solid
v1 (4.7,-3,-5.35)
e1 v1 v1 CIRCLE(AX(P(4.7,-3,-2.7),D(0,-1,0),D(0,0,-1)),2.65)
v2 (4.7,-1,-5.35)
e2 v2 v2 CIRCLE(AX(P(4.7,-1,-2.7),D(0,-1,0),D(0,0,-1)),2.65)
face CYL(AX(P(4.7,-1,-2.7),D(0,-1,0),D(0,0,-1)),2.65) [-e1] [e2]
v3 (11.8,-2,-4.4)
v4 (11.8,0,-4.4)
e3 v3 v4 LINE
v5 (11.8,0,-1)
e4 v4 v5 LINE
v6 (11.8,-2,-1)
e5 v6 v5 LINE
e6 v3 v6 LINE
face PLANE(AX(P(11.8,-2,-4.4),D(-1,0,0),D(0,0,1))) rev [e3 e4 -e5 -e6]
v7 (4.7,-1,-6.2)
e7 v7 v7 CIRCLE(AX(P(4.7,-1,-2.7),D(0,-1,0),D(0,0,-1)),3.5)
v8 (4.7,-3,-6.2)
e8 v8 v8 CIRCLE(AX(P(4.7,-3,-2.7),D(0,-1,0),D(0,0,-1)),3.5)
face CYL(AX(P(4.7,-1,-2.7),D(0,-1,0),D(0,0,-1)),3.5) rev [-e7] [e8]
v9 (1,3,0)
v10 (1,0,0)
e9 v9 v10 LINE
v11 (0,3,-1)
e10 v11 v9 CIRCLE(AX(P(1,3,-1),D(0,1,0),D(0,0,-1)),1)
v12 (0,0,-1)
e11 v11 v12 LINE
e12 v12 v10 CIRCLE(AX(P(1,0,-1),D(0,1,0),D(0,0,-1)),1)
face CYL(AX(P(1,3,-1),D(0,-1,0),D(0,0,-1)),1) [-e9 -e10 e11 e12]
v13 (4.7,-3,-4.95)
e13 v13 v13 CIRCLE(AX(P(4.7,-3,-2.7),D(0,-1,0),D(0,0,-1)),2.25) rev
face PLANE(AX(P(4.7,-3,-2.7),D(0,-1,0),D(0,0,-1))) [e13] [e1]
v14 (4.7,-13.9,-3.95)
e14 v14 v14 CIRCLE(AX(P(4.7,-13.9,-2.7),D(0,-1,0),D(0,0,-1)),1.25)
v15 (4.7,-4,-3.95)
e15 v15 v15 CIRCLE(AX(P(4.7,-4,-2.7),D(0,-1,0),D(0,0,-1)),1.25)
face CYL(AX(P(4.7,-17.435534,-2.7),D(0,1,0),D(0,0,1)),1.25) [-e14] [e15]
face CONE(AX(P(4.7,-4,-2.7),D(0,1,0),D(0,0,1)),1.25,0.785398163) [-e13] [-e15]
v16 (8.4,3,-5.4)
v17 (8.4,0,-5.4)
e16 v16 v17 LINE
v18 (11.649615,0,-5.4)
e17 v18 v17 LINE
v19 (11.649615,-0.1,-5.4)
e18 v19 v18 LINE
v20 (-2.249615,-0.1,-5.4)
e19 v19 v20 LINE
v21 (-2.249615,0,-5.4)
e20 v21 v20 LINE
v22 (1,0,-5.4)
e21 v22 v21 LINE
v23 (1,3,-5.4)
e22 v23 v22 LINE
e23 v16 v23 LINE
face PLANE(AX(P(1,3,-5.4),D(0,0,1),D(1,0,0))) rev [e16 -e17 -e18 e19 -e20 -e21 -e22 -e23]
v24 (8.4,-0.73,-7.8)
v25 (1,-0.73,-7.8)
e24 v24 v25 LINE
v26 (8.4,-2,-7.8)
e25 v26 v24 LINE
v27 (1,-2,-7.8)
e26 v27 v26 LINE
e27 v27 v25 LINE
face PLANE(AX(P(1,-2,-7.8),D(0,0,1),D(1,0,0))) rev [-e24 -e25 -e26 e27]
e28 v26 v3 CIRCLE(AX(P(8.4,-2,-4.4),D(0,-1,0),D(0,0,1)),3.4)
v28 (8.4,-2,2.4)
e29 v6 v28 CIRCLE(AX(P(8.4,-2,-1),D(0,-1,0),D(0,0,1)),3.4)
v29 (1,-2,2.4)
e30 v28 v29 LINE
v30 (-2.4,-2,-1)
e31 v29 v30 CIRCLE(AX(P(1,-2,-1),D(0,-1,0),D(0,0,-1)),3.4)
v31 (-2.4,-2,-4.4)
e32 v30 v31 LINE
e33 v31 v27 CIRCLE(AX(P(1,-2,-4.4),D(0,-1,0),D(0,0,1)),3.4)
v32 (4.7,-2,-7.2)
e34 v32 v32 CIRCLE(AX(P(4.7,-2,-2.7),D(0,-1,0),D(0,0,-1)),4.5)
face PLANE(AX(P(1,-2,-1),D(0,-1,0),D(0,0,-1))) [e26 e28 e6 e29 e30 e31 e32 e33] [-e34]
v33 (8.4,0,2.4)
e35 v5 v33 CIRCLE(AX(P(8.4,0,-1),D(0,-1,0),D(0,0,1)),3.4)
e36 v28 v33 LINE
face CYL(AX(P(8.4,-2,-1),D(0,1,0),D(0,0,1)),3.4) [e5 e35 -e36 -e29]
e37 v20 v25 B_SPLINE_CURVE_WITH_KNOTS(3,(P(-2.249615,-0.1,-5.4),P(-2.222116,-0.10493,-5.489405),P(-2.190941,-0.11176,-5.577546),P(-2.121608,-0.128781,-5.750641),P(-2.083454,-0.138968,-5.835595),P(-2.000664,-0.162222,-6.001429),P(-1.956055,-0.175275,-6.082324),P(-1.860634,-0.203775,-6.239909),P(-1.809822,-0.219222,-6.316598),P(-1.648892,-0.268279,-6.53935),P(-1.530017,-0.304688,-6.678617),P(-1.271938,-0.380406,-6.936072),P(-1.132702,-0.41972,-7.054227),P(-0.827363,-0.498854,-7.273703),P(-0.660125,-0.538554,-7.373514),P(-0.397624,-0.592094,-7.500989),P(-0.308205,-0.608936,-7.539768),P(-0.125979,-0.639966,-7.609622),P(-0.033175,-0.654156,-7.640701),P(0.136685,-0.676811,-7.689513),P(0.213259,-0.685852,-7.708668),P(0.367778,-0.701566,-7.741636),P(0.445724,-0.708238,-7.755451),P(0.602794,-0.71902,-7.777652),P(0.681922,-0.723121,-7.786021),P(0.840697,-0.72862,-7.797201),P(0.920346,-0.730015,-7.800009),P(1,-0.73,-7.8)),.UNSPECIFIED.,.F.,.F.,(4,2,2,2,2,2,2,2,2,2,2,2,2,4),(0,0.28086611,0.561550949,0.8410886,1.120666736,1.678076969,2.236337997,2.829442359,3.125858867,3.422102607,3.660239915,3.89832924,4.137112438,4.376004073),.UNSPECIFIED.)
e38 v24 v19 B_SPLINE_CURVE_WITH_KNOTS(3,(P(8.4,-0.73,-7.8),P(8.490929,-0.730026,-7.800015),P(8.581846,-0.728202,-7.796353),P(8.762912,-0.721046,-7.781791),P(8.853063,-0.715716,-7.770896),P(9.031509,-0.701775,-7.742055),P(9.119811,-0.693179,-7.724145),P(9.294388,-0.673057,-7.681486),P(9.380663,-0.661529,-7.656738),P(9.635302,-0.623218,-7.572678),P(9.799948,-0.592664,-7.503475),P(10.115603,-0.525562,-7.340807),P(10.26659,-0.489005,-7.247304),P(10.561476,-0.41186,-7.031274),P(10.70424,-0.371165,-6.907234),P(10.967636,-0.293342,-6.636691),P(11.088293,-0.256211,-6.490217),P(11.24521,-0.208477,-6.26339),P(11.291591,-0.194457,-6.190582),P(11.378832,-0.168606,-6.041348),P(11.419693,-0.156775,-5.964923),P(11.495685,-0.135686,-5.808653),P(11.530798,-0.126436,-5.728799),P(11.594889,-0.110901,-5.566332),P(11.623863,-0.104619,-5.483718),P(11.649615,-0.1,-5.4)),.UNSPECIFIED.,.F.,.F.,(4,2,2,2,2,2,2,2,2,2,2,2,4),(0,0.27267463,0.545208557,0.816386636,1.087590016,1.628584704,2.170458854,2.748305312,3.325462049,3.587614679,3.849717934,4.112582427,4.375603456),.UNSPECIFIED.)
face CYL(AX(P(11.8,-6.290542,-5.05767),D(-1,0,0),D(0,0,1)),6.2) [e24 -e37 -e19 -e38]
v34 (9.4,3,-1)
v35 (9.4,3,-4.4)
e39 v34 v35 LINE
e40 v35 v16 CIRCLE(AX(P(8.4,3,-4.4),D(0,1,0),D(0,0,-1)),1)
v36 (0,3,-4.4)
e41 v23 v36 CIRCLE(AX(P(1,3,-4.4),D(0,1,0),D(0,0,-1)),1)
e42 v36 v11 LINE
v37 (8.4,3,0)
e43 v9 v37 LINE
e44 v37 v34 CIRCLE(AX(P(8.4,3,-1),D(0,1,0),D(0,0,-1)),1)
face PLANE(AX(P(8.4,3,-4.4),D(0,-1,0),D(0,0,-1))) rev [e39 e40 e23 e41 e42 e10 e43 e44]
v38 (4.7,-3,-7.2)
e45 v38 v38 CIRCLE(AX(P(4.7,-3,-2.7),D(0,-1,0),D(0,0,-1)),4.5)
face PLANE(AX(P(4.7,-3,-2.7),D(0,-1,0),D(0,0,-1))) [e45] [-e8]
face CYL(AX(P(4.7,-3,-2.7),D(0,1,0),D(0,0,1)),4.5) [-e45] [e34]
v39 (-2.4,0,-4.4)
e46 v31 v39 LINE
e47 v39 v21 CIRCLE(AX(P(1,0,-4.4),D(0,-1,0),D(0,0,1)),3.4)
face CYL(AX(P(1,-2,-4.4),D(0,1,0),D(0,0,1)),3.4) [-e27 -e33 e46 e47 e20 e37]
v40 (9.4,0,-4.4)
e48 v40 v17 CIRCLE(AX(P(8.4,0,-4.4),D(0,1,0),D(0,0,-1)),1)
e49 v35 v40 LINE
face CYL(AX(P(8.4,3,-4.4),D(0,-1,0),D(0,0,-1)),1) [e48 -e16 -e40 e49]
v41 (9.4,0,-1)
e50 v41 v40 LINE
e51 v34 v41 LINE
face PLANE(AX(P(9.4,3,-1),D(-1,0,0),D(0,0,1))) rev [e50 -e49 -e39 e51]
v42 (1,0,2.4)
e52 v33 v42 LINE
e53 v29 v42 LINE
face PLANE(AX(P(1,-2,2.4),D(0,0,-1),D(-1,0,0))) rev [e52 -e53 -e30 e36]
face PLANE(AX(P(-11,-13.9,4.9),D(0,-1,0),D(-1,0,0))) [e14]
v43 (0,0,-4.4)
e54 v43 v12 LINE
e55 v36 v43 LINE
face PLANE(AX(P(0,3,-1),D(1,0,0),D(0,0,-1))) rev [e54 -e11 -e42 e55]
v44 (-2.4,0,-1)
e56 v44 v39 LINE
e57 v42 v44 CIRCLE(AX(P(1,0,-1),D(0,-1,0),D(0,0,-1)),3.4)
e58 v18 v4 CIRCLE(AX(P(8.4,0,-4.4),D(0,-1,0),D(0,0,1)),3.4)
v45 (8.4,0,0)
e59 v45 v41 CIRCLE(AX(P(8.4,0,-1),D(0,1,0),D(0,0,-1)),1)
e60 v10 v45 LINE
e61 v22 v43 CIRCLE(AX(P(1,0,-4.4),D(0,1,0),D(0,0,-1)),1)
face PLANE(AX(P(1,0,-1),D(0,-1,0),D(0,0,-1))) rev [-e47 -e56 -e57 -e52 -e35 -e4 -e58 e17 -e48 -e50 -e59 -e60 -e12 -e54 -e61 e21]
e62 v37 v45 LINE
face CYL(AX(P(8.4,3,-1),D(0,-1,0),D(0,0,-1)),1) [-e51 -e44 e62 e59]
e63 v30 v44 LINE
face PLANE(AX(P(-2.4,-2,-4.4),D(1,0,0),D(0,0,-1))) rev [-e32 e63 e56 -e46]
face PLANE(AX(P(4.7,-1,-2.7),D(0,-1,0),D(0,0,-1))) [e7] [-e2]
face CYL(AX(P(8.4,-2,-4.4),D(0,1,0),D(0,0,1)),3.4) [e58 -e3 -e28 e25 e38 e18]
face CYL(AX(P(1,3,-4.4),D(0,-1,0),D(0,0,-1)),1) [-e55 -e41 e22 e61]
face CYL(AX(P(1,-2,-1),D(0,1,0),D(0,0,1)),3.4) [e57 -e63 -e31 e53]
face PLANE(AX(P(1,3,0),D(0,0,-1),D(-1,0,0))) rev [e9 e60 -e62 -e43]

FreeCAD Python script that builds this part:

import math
import FreeCAD as App
import Part
import Sketcher
from FreeCAD import Vector


def edges_at(feature, points):
    """Names of the edges that pass closest to the given points."""
    edges = feature.Shape.Edges
    near = lambda p: min(range(len(edges)), key=lambda i: edges[i].distToShape(Part.Vertex(*p))[0])
    return sorted({f"Edge{near(p) + 1}" for p in points})

doc = App.newDocument("Part")
body = doc.addObject("PartDesign::Body", "Body")

sketch1 = body.newObject("Sketcher::SketchObject", "Sketch")
sketch1.AttachmentSupport = (doc.getObject("XZ_Plane"), [""])
sketch1.MapMode = "FlatFace"
sketch1.addGeometry([
    Part.LineSegment(Vector(1, 0, 0), Vector(8.4, 0, 0)),
    Part.ArcOfCircle(Part.Circle(Vector(8.4, -1, 0), Vector(0, 0, 1), 1), math.radians(0), math.radians(90)),
    Part.LineSegment(Vector(9.4, -1, 0), Vector(9.4, -4.4, 0)),
    Part.ArcOfCircle(Part.Circle(Vector(8.4, -4.4, 0), Vector(0, 0, 1), 1), math.radians(-90), math.radians(0)),
    Part.LineSegment(Vector(8.4, -5.4, 0), Vector(1, -5.4, 0)),
    Part.ArcOfCircle(Part.Circle(Vector(1, -4.4, 0), Vector(0, 0, 1), 1), math.radians(-180), math.radians(-90)),
    Part.LineSegment(Vector(0, -4.4, 0), Vector(0, -1, 0)),
    Part.ArcOfCircle(Part.Circle(Vector(1, -1, 0), Vector(0, 0, 1), 1), math.radians(90), math.radians(180)),
], False)
sketch1.addConstraint([
    Sketcher.Constraint("Tangent", 0, 2, 1, 2),
    Sketcher.Constraint("Tangent", 1, 1, 2, 1),
    Sketcher.Constraint("Tangent", 2, 2, 3, 2),
    Sketcher.Constraint("Tangent", 3, 1, 4, 1),
    Sketcher.Constraint("Tangent", 4, 2, 5, 2),
    Sketcher.Constraint("Tangent", 5, 1, 6, 1),
    Sketcher.Constraint("Tangent", 6, 2, 7, 2),
    Sketcher.Constraint("Tangent", 7, 1, 0, 1),
    Sketcher.Constraint("Horizontal", 0),
    Sketcher.Constraint("Vertical", 2),
    Sketcher.Constraint("Horizontal", 4),
    Sketcher.Constraint("Vertical", 6),
    Sketcher.Constraint("Equal", 1, 3),
    Sketcher.Constraint("Equal", 3, 5),
    Sketcher.Constraint("Equal", 5, 7),
    Sketcher.Constraint("PointOnObject", 0, 2, -1),
    Sketcher.Constraint("PointOnObject", 5, 1, -2),
    Sketcher.Constraint("Radius", 1, 1.0),
    Sketcher.Constraint("DistanceX", 0, 1, 0, 2, 7.4),
    Sketcher.Constraint("DistanceY", 2, 2, 2, 1, 3.4),
])
pad1 = body.newObject("PartDesign::Pad", "Pad")
pad1.Profile = sketch1
pad1.Length = 3
pad1.Reversed = True

sketch2 = body.newObject("Sketcher::SketchObject", "Sketch001")
sketch2.AttachmentSupport = (doc.getObject("XZ_Plane"), [""])
sketch2.MapMode = "FlatFace"
sketch2.addGeometry([
    Part.LineSegment(Vector(1, -7.8, 0), Vector(8.4, -7.8, 0)),
    Part.ArcOfCircle(Part.Circle(Vector(8.4, -4.4, 0), Vector(0, 0, 1), 3.4), math.radians(-90), math.radians(0)),
    Part.LineSegment(Vector(11.8, -4.4, 0), Vector(11.8, -1, 0)),
    Part.ArcOfCircle(Part.Circle(Vector(8.4, -1, 0), Vector(0, 0, 1), 3.4), math.radians(0), math.radians(90)),
    Part.LineSegment(Vector(8.4, 2.4, 0), Vector(1, 2.4, 0)),
    Part.ArcOfCircle(Part.Circle(Vector(1, -1, 0), Vector(0, 0, 1), 3.4), math.radians(90), math.radians(180)),
    Part.LineSegment(Vector(-2.4, -1, 0), Vector(-2.4, -4.4, 0)),
    Part.ArcOfCircle(Part.Circle(Vector(1, -4.4, 0), Vector(0, 0, 1), 3.4), math.radians(180), math.radians(270)),
], False)
sketch2.addConstraint([
    Sketcher.Constraint("Tangent", 0, 2, 1, 1),
    Sketcher.Constraint("Tangent", 1, 2, 2, 1),
    Sketcher.Constraint("Tangent", 2, 2, 3, 1),
    Sketcher.Constraint("Tangent", 3, 2, 4, 1),
    Sketcher.Constraint("Tangent", 4, 2, 5, 1),
    Sketcher.Constraint("Tangent", 5, 2, 6, 1),
    Sketcher.Constraint("Tangent", 6, 2, 7, 1),
    Sketcher.Constraint("Tangent", 7, 2, 0, 1),
    Sketcher.Constraint("Horizontal", 0),
    Sketcher.Constraint("Vertical", 2),
    Sketcher.Constraint("Horizontal", 4),
    Sketcher.Constraint("Vertical", 6),
    Sketcher.Constraint("Equal", 1, 3),
    Sketcher.Constraint("Equal", 3, 5),
    Sketcher.Constraint("Equal", 5, 7),
    Sketcher.Constraint("Radius", 1, 3.4),
    Sketcher.Constraint("DistanceX", 0, 1, 0, 2, 7.4),
    Sketcher.Constraint("DistanceY", 2, 1, 2, 2, 3.4),
    Sketcher.Constraint("DistanceY", 3, 3, -1, 1, 1.0),
    Sketcher.Constraint("DistanceX", -1, 1, 5, 3, 1.0),
])
pad2 = body.newObject("PartDesign::Pad", "Pad001")
pad2.Profile = sketch2
pad2.Length = 2

sketch3 = body.newObject("Sketcher::SketchObject", "Sketch002")
sketch3.AttachmentSupport = (doc.getObject("YZ_Plane"), [""])
sketch3.MapMode = "FlatFace"
sketch3.AttachmentOffset = App.Placement(Vector(0, 0, -2.4), App.Rotation())
sketch3.addGeometry([
    Part.LineSegment(Vector(-0.1, -5.4, 0), Vector(0.4, -5.4, 0)),
    Part.LineSegment(Vector(0.4, -5.4, 0), Vector(0.4, -7.8, 0)),
    Part.LineSegment(Vector(0.4, -7.8, 0), Vector(-0.7, -7.8, 0)),
    Part.ArcOfCircle(Part.Circle(Vector(-6.3, -5.1, 0), Vector(0, 0, 1), 6.2), math.radians(-26), math.radians(-3)),
], False)
sketch3.addConstraint([
    Sketcher.Constraint("Coincident", 0, 2, 1, 1),
    Sketcher.Constraint("Coincident", 1, 2, 2, 1),
    Sketcher.Constraint("Coincident", 2, 2, 3, 1),
    Sketcher.Constraint("Coincident", 3, 2, 0, 1),
    Sketcher.Constraint("Horizontal", 0),
    Sketcher.Constraint("Vertical", 1),
    Sketcher.Constraint("Horizontal", 2),
    Sketcher.Constraint("Radius", 3, 6.2),
    Sketcher.Constraint("DistanceX", 0, 1, 0, 2, 0.5),
    Sketcher.Constraint("DistanceY", 1, 2, 1, 1, 2.4),
    Sketcher.Constraint("DistanceX", 2, 2, 2, 1, 1.13),
    Sketcher.Constraint("DistanceX", -1, 1, 0, 2, 0.4),
    Sketcher.Constraint("DistanceY", 0, 2, -1, 1, 5.4),
])
pocket1 = body.newObject("PartDesign::Pocket", "Pocket")
pocket1.Profile = sketch3
pocket1.Type = "ThroughAll"
pocket1.Reversed = True

sketch4 = body.newObject("Sketcher::SketchObject", "Sketch003")
sketch4.AttachmentSupport = (doc.getObject("XZ_Plane"), [""])
sketch4.MapMode = "FlatFace"
sketch4.AttachmentOffset = App.Placement(Vector(0, 0, 2), App.Rotation())
sketch4.addGeometry([
    Part.Circle(Vector(4.7, -2.7, 0), Vector(0, 0, 1), 3.5),
    Part.Circle(Vector(4.7, -2.7, 0), Vector(0, 0, 1), 2.6),
], False)
sketch4.addConstraint([
    Sketcher.Constraint("Coincident", 1, 3, 0, 3),
    Sketcher.Constraint("Diameter", 0, 7.0),
    Sketcher.Constraint("Diameter", 1, 5.3),
    Sketcher.Constraint("DistanceX", -1, 1, 0, 3, 4.7),
    Sketcher.Constraint("DistanceY", 0, 3, -1, 1, 2.7),
])
pocket2 = body.newObject("PartDesign::Pocket", "Pocket001")
pocket2.Profile = sketch4
pocket2.Length = 1

sketch5 = body.newObject("Sketcher::SketchObject", "Sketch004")
sketch5.AttachmentSupport = (doc.getObject("XZ_Plane"), [""])
sketch5.MapMode = "FlatFace"
sketch5.AttachmentOffset = App.Placement(Vector(0, 0, 3), App.Rotation())
sketch5.addGeometry(Part.Circle(Vector(4.7, -2.7, 0), Vector(0, 0, 1), 2.6), False)
sketch5.addConstraint([
    Sketcher.Constraint("Diameter", 0, 5.3),
    Sketcher.Constraint("DistanceX", -1, 1, 0, 3, 4.7),
    Sketcher.Constraint("DistanceY", 0, 3, -1, 1, 2.7),
])
pad3 = body.newObject("PartDesign::Pad", "Pad002")
pad3.Profile = sketch5
pad3.Length = 1
pad3.Reversed = True

sketch6 = body.newObject("Sketcher::SketchObject", "Sketch005")
sketch6.AttachmentSupport = (doc.getObject("XZ_Plane"), [""])
sketch6.MapMode = "FlatFace"
sketch6.AttachmentOffset = App.Placement(Vector(0, 0, 3), App.Rotation())
sketch6.addGeometry([
    Part.Circle(Vector(4.7, -2.7, 0), Vector(0, 0, 1), 4.5),
    Part.Circle(Vector(4.7, -2.7, 0), Vector(0, 0, 1), 3.5),
], False)
sketch6.addConstraint([
    Sketcher.Constraint("Coincident", 1, 3, 0, 3),
    Sketcher.Constraint("Diameter", 0, 9.0),
    Sketcher.Constraint("Diameter", 1, 7.0),
    Sketcher.Constraint("DistanceX", -1, 1, 0, 3, 4.7),
    Sketcher.Constraint("DistanceY", 0, 3, -1, 1, 2.7),
])
pad4 = body.newObject("PartDesign::Pad", "Pad003")
pad4.Profile = sketch6
pad4.Length = 1
pad4.Reversed = True

sketch7 = body.newObject("Sketcher::SketchObject", "Sketch006")
sketch7.AttachmentSupport = (doc.getObject("XZ_Plane"), [""])
sketch7.MapMode = "FlatFace"
sketch7.AttachmentOffset = App.Placement(Vector(0, 0, 3), App.Rotation())
sketch7.addGeometry(Part.Circle(Vector(4.7, -2.7, 0), Vector(0, 0, 1), 1.2), False)
sketch7.addConstraint([
    Sketcher.Constraint("Diameter", 0, 2.5),
    Sketcher.Constraint("DistanceX", -1, 1, 0, 3, 4.7),
    Sketcher.Constraint("DistanceY", 0, 3, -1, 1, 2.7),
])
pad5 = body.newObject("PartDesign::Pad", "Pad004")
pad5.Profile = sketch7
pad5.Length = 10.9
doc.recompute()

chamfer = body.newObject("PartDesign::Chamfer", "Chamfer")
chamfer.Base = (pad5, edges_at(pad5, [(4.7, -3, -1.45)]))
chamfer.Size = 1

doc.recompute()
